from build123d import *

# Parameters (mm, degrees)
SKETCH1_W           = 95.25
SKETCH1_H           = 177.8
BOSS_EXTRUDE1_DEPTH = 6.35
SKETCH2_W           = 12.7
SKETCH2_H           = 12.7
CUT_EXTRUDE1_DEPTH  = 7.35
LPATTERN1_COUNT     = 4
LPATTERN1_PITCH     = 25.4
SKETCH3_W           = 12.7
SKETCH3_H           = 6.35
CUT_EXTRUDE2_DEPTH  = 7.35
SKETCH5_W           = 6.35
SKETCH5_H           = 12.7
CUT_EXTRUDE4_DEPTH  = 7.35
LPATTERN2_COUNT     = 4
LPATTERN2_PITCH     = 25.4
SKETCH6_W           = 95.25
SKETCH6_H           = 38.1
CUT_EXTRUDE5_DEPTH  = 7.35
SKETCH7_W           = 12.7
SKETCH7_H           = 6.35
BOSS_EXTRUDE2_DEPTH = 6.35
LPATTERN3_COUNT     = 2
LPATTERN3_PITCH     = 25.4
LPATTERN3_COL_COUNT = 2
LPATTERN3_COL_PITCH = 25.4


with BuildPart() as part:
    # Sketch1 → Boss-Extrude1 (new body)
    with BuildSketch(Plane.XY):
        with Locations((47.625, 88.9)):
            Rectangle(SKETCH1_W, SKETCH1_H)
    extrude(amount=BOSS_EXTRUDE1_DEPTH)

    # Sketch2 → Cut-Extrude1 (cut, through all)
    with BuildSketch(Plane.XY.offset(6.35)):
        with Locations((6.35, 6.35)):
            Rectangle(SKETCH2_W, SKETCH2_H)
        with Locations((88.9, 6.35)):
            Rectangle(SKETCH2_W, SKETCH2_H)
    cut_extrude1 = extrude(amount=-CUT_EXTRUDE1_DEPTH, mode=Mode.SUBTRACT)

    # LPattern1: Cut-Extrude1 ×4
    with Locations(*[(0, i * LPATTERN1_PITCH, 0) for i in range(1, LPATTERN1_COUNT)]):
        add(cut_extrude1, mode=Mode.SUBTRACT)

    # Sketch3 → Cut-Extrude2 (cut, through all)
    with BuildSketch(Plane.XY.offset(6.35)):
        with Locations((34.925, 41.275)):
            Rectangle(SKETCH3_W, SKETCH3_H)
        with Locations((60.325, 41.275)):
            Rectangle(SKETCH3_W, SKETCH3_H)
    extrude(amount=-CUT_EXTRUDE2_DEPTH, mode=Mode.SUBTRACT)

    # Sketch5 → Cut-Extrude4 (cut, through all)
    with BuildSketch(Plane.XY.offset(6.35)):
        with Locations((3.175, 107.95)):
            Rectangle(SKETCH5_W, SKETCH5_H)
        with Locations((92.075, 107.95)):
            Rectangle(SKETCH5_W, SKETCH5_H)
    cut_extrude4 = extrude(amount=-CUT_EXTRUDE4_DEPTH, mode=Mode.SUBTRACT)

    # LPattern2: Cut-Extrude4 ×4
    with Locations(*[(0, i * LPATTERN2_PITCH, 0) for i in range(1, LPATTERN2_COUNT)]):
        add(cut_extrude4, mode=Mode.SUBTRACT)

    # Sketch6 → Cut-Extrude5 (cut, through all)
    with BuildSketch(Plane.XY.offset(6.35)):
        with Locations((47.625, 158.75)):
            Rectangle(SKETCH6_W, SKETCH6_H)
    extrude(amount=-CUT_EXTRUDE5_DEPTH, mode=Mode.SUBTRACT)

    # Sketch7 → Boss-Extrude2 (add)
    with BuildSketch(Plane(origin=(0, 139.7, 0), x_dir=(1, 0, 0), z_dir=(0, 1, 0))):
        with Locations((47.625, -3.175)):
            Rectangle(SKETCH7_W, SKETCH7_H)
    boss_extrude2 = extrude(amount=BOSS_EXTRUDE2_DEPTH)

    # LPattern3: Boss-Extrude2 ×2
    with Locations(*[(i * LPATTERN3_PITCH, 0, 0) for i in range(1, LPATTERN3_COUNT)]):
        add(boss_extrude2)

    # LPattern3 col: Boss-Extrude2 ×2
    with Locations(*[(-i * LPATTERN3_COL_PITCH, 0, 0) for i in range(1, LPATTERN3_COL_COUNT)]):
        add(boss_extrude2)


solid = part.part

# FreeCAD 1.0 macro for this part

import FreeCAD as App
import Part
import Sketcher
from FreeCAD import Vector
Q = App.Units.Quantity


def add_polygon(sketch, points):
    """Adds a closed chain of lines whose ends are joined by coincident constraints."""
    first, n = sketch.GeometryCount, len(points)
    for a, b in zip(points, points[1:] + points[:1]):
        sketch.addGeometry(Part.LineSegment(App.Vector(*a, 0), App.Vector(*b, 0)), False)
    for i in range(n):
        sketch.addConstraint(Sketcher.Constraint("Coincident", first + i, 2, first + (i + 1) % n, 1))

doc = App.newDocument("Part")
body = doc.addObject("PartDesign::Body", "Body")

# Sketch on XY plane
sketch1 = body.newObject("Sketcher::SketchObject", "Sketch")
sketch1.AttachmentSupport = (doc.getObject("XY_Plane"), [""])
sketch1.MapMode = "FlatFace"
add_polygon(sketch1, [(0, 177.8), (0, 0), (95.25, 0), (95.25, 177.8)])  # lines 0-3
sketch1.addConstraint([
    Sketcher.Constraint("Vertical", 0),
    Sketcher.Constraint("Horizontal", 1),
    Sketcher.Constraint("Vertical", 2),
    Sketcher.Constraint("Horizontal", 3),
    Sketcher.Constraint("Coincident", 0, 2, -1, 1),
    Sketcher.Constraint("DistanceY", 0, 2, 0, 1, Q("7 in")),
    Sketcher.Constraint("DistanceX", 1, 1, 1, 2, Q("3.75 in")),
])
pad1 = body.newObject("PartDesign::Pad", "Pad")
pad1.Profile = sketch1
pad1.Length = Q("0.25 in")

# Sketch on XY plane
sketch2 = body.newObject("Sketcher::SketchObject", "Sketch001")
sketch2.AttachmentSupport = (doc.getObject("XY_Plane"), [""])
sketch2.MapMode = "FlatFace"
sketch2.AttachmentOffset = App.Placement(Vector(0, 0, 0.25 * 25.4), App.Rotation())
add_polygon(sketch2, [(0, 12.7), (0, 0), (12.7, 0), (12.7, 12.7)])  # lines 0-3
add_polygon(sketch2, [(82.55, 12.7), (82.55, 0), (95.25, 0), (95.25, 12.7)])  # lines 4-7
sketch2.addConstraint([
    Sketcher.Constraint("Vertical", 0),
    Sketcher.Constraint("Horizontal", 1),
    Sketcher.Constraint("Vertical", 2),
    Sketcher.Constraint("Horizontal", 3),
    Sketcher.Constraint("Vertical", 4),
    Sketcher.Constraint("Horizontal", 5),
    Sketcher.Constraint("Vertical", 6),
    Sketcher.Constraint("Horizontal", 7),
    Sketcher.Constraint("Coincident", 0, 2, -1, 1),
    Sketcher.Constraint("PointOnObject", 4, 2, -1),
    Sketcher.Constraint("Horizontal", 3, 2, 6, 2),
    Sketcher.Constraint("Equal", 3, 5),
    Sketcher.Constraint("Equal", 7, 0),
    Sketcher.Constraint("DistanceX", 1, 1, 1, 2, Q("0.5 in")),
    Sketcher.Constraint("DistanceX", -1, 1, 4, 2, Q("3.25 in")),
])
pocket1 = body.newObject("PartDesign::Pocket", "Pocket")
pocket1.Profile = sketch2
pocket1.Type = "ThroughAll"
doc.recompute()

linearpattern = body.newObject("PartDesign::LinearPattern", "LinearPattern")
linearpattern.Originals = [pocket1]
linearpattern.Direction = (doc.getObject("Y_Axis"), [""])
linearpattern.Mode = "offset"
linearpattern.Offset = Q("1 in")
linearpattern.Occurrences = 4
body.Tip = linearpattern

# Sketch on XY plane
sketch3 = body.newObject("Sketcher::SketchObject", "Sketch002")
sketch3.AttachmentSupport = (doc.getObject("XY_Plane"), [""])
sketch3.MapMode = "FlatFace"
sketch3.AttachmentOffset = App.Placement(Vector(0, 0, 0.25 * 25.4), App.Rotation())
add_polygon(sketch3, [(28.575, 44.45), (28.575, 38.1), (41.275, 38.1), (41.275, 44.45)])  # lines 0-3
add_polygon(sketch3, [(53.975, 44.45), (53.975, 38.1), (66.675, 38.1), (66.675, 44.45)])  # lines 4-7
sketch3.addConstraint([
    Sketcher.Constraint("Vertical", 0),
    Sketcher.Constraint("Horizontal", 1),
    Sketcher.Constraint("Vertical", 2),
    Sketcher.Constraint("Horizontal", 3),
    Sketcher.Constraint("Vertical", 4),
    Sketcher.Constraint("Horizontal", 5),
    Sketcher.Constraint("Vertical", 6),
    Sketcher.Constraint("Horizontal", 7),
    Sketcher.Constraint("Horizontal", 1, 2, 4, 2),
    Sketcher.Constraint("Horizontal", 3, 2, 6, 2),
    Sketcher.Constraint("Equal", 3, 5),
    Sketcher.Constraint("DistanceX", 1, 1, 1, 2, Q("0.5 in")),
    Sketcher.Constraint("DistanceX", 0, 2, 4, 2, Q("1 in")),
    Sketcher.Constraint("DistanceY", 0, 2, 0, 1, Q("0.25 in")),
    Sketcher.Constraint("DistanceY", -1, 1, 0, 2, Q("1.5 in")),
    Sketcher.Constraint("DistanceX", -1, 1, 0, 2, Q("1.125 in")),
])
pocket2 = body.newObject("PartDesign::Pocket", "Pocket001")
pocket2.Profile = sketch3
pocket2.Type = "ThroughAll"

# Sketch on XY plane
sketch4 = body.newObject("Sketcher::SketchObject", "Sketch003")
sketch4.AttachmentSupport = (doc.getObject("XY_Plane"), [""])
sketch4.MapMode = "FlatFace"
sketch4.AttachmentOffset = App.Placement(Vector(0, 0, 0.25 * 25.4), App.Rotation())
add_polygon(sketch4, [(0, 114.3), (0, 101.6), (6.35, 101.6), (6.35, 114.3)])  # lines 0-3
add_polygon(sketch4, [(88.9, 114.3), (88.9, 101.6), (95.25, 101.6), (95.25, 114.3)])  # lines 4-7
sketch4.addConstraint([
    Sketcher.Constraint("Vertical", 0),
    Sketcher.Constraint("Horizontal", 1),
    Sketcher.Constraint("Vertical", 2),
    Sketcher.Constraint("Horizontal", 3),
    Sketcher.Constraint("Vertical", 4),
    Sketcher.Constraint("Horizontal", 5),
    Sketcher.Constraint("Vertical", 6),
    Sketcher.Constraint("Horizontal", 7),
    Sketcher.Constraint("PointOnObject", 0, 2, -2),
    Sketcher.Constraint("Horizontal", 1, 2, 4, 2),
    Sketcher.Constraint("Horizontal", 3, 2, 6, 2),
    Sketcher.Constraint("Equal", 3, 5),
    Sketcher.Constraint("DistanceY", 0, 2, 0, 1, Q("0.5 in")),
    Sketcher.Constraint("DistanceY", -1, 1, 0, 2, Q("4 in")),
    Sketcher.Constraint("DistanceX", 1, 1, 1, 2, Q("0.25 in")),
    Sketcher.Constraint("DistanceX", -1, 1, 4, 2, Q("3.5 in")),
])
pocket3 = body.newObject("PartDesign::Pocket", "Pocket002")
pocket3.Profile = sketch4
pocket3.Type = "ThroughAll"
doc.recompute()

linearpattern2 = body.newObject("PartDesign::LinearPattern", "LinearPattern001")
linearpattern2.Originals = [pocket3]
linearpattern2.Direction = (doc.getObject("Y_Axis"), [""])
linearpattern2.Mode = "offset"
linearpattern2.Offset = Q("1 in")
linearpattern2.Occurrences = 4
body.Tip = linearpattern2

# Sketch on XY plane
sketch5 = body.newObject("Sketcher::SketchObject", "Sketch004")
sketch5.AttachmentSupport = (doc.getObject("XY_Plane"), [""])
sketch5.MapMode = "FlatFace"
sketch5.AttachmentOffset = App.Placement(Vector(0, 0, 0.25 * 25.4), App.Rotation())
add_polygon(sketch5, [(0, 177.8), (0, 139.7), (95.25, 139.7), (95.25, 177.8)])  # lines 0-3
sketch5.addConstraint([
    Sketcher.Constraint("Vertical", 0),
    Sketcher.Constraint("Horizontal", 1),
    Sketcher.Constraint("Vertical", 2),
    Sketcher.Constraint("Horizontal", 3),
    Sketcher.Constraint("PointOnObject", 0, 2, -2),
    Sketcher.Constraint("DistanceY", 0, 2, 0, 1, Q("1.5 in")),
    Sketcher.Constraint("DistanceY", -1, 1, 2, 2, Q("7 in")),
    Sketcher.Constraint("DistanceX", 1, 1, 1, 2, Q("3.75 in")),
])
pocket4 = body.newObject("PartDesign::Pocket", "Pocket003")
pocket4.Profile = sketch5
pocket4.Type = "ThroughAll"

# Sketch on XZ plane
sketch6 = body.newObject("Sketcher::SketchObject", "Sketch005")
sketch6.AttachmentSupport = (doc.getObject("XZ_Plane"), [""])
sketch6.MapMode = "FlatFace"
sketch6.AttachmentOffset = App.Placement(Vector(0, 0, -5.5 * 25.4), App.Rotation())
add_polygon(sketch6, [(41.275, 0), (41.275, 6.35), (53.975, 6.35), (53.975, 0)])  # lines 0-3
sketch6.addConstraint([
    Sketcher.Constraint("Vertical", 0),
    Sketcher.Constraint("Horizontal", 1),
    Sketcher.Constraint("Vertical", 2),
    Sketcher.Constraint("Horizontal", 3),
    Sketcher.Constraint("PointOnObject", 2, 2, -1),
    Sketcher.Constraint("DistanceX", 1, 1, 1, 2, Q("0.5 in")),
    Sketcher.Constraint("DistanceY", 0, 1, 0, 2, Q("0.25 in")),
    Sketcher.Constraint("DistanceX", -1, 1, 0, 2, Q("1.625 in")),
])
pad2 = body.newObject("PartDesign::Pad", "Pad001")
pad2.Profile = sketch6
pad2.Length = Q("0.25 in")
pad2.Reversed = True
doc.recompute()

linearpattern3 = body.newObject("PartDesign::LinearPattern", "LinearPattern002")
linearpattern3.Originals = [pad2]
linearpattern3.Direction = (doc.getObject("X_Axis"), [""])
linearpattern3.Mode = "offset"
linearpattern3.Offset = Q("1 in")
linearpattern3.Occurrences = 2
body.Tip = linearpattern3
doc.recompute()

linearpattern4 = body.newObject("PartDesign::LinearPattern", "LinearPattern003")
linearpattern4.Originals = [pad2]
linearpattern4.Direction = (doc.getObject("X_Axis"), [""])
linearpattern4.Mode = "offset"
linearpattern4.Offset = Q("1 in")
linearpattern4.Occurrences = 2
linearpattern4.Reversed = True
body.Tip = linearpattern4

doc.recompute()
